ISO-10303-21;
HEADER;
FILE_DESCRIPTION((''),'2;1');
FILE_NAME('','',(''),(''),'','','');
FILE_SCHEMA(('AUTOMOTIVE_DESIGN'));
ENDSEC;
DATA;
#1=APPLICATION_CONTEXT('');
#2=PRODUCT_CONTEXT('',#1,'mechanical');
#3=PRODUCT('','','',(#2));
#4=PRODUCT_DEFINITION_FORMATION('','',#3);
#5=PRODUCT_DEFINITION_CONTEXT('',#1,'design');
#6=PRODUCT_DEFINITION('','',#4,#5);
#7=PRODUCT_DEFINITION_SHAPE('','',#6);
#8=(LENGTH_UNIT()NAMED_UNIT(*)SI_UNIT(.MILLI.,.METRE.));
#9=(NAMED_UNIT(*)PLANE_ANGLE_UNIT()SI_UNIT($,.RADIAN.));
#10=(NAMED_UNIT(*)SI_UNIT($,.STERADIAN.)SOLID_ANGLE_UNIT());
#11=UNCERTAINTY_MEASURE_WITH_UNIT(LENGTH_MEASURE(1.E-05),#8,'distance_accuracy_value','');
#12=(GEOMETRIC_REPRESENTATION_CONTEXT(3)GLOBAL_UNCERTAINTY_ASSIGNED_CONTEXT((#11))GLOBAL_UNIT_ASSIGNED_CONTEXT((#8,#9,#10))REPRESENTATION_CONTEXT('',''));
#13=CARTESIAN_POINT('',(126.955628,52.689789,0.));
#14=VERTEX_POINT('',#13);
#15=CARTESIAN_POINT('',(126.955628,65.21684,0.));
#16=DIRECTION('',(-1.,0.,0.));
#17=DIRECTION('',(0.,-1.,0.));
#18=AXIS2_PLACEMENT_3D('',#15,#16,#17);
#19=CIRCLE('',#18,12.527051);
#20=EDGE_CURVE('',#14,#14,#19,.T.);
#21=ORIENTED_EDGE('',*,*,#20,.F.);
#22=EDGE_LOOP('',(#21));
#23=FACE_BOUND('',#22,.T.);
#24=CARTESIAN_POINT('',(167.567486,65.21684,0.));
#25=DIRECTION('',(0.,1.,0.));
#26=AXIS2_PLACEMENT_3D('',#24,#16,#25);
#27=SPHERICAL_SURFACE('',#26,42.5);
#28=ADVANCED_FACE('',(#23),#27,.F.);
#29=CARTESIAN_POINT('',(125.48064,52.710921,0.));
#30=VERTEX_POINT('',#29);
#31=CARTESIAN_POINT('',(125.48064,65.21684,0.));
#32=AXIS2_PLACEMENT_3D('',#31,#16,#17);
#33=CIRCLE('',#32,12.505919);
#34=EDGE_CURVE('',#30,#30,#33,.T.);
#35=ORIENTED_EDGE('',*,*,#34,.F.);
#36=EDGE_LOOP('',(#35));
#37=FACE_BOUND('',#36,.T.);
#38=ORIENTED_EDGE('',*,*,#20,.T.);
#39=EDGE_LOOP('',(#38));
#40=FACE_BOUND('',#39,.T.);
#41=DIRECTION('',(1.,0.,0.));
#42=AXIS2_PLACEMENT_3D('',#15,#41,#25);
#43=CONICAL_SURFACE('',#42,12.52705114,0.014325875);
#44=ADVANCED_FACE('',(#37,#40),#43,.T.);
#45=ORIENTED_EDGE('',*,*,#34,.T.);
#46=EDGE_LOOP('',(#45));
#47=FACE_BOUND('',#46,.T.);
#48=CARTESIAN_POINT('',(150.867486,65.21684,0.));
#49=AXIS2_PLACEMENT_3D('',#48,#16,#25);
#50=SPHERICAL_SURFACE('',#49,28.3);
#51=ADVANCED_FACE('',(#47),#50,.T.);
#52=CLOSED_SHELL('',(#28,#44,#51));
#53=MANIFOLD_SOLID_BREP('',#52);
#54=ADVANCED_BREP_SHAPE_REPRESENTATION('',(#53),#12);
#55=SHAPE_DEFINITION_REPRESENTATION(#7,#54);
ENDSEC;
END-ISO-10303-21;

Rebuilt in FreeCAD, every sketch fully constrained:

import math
import FreeCAD as App
import Part
import Sketcher

V = App.Vector

doc = App.newDocument("Part")
body = doc.addObject("PartDesign::Body", "Body")

# Sketch on XY plane
sketch1 = body.newObject("Sketcher::SketchObject", "Sketch")
sketch1.AttachmentSupport = (doc.getObject("XY_Plane"), [""])
sketch1.MapMode = "FlatFace"
sketch1.addGeometry([
    Part.LineSegment(V(126.955628, 77.743892, 0), V(125.48064, 77.72276, 0)),
    Part.ArcOfCircle(Part.Circle(V(150.867486, 65.21684, 0), V(0, 0, 1), 28.3), math.radians(153.774492), math.radians(180)),
    Part.LineSegment(V(122.567486, 65.21684, 0), V(125.067486, 65.21684, 0)),
    Part.ArcOfCircle(Part.Circle(V(167.567486, 65.21684, 0), V(0, 0, 1), 42.5), math.radians(162.857205), math.radians(180)),
], False)
sketch1.addGeometry(Part.LineSegment(V(122.567486, 65.21684, 0), V(167.567486, 65.21684, 0)), True)  # axis
sketch1.addConstraint([
    Sketcher.Constraint("Coincident", 0, 2, 1, 1),
    Sketcher.Constraint("Coincident", 1, 2, 2, 1),
    Sketcher.Constraint("Coincident", 2, 2, 3, 2),
    Sketcher.Constraint("Coincident", 3, 1, 0, 1),
    Sketcher.Constraint("Horizontal", 2),
    Sketcher.Constraint("Horizontal", 4),
    Sketcher.Constraint("Coincident", 4, 1, 1, 2),
    Sketcher.Constraint("Coincident", 4, 2, 3, 3),
    Sketcher.Constraint("Horizontal", 1, 3, 3, 3),
    Sketcher.Constraint("Radius", 1, 28.3),
    Sketcher.Constraint("Radius", 3, 42.5),
    Sketcher.Constraint("DistanceX", 4, 1, 4, 2, 45.0),
    Sketcher.Constraint("Distance", 0, 1.47514),
    Sketcher.Constraint("DistanceY", -1, 1, 1, 3, 65.21684),
    Sketcher.Constraint("DistanceX", -1, 1, 0, 2, 125.48064),
    Sketcher.Constraint("DistanceY", -1, 1, 0, 2, 77.72276),
])
revolution = body.newObject("PartDesign::Revolution", "Revolution")
revolution.Profile = sketch1
revolution.ReferenceAxis = (sketch1, ["Axis0"])
revolution.Angle = 360

doc.recompute()
